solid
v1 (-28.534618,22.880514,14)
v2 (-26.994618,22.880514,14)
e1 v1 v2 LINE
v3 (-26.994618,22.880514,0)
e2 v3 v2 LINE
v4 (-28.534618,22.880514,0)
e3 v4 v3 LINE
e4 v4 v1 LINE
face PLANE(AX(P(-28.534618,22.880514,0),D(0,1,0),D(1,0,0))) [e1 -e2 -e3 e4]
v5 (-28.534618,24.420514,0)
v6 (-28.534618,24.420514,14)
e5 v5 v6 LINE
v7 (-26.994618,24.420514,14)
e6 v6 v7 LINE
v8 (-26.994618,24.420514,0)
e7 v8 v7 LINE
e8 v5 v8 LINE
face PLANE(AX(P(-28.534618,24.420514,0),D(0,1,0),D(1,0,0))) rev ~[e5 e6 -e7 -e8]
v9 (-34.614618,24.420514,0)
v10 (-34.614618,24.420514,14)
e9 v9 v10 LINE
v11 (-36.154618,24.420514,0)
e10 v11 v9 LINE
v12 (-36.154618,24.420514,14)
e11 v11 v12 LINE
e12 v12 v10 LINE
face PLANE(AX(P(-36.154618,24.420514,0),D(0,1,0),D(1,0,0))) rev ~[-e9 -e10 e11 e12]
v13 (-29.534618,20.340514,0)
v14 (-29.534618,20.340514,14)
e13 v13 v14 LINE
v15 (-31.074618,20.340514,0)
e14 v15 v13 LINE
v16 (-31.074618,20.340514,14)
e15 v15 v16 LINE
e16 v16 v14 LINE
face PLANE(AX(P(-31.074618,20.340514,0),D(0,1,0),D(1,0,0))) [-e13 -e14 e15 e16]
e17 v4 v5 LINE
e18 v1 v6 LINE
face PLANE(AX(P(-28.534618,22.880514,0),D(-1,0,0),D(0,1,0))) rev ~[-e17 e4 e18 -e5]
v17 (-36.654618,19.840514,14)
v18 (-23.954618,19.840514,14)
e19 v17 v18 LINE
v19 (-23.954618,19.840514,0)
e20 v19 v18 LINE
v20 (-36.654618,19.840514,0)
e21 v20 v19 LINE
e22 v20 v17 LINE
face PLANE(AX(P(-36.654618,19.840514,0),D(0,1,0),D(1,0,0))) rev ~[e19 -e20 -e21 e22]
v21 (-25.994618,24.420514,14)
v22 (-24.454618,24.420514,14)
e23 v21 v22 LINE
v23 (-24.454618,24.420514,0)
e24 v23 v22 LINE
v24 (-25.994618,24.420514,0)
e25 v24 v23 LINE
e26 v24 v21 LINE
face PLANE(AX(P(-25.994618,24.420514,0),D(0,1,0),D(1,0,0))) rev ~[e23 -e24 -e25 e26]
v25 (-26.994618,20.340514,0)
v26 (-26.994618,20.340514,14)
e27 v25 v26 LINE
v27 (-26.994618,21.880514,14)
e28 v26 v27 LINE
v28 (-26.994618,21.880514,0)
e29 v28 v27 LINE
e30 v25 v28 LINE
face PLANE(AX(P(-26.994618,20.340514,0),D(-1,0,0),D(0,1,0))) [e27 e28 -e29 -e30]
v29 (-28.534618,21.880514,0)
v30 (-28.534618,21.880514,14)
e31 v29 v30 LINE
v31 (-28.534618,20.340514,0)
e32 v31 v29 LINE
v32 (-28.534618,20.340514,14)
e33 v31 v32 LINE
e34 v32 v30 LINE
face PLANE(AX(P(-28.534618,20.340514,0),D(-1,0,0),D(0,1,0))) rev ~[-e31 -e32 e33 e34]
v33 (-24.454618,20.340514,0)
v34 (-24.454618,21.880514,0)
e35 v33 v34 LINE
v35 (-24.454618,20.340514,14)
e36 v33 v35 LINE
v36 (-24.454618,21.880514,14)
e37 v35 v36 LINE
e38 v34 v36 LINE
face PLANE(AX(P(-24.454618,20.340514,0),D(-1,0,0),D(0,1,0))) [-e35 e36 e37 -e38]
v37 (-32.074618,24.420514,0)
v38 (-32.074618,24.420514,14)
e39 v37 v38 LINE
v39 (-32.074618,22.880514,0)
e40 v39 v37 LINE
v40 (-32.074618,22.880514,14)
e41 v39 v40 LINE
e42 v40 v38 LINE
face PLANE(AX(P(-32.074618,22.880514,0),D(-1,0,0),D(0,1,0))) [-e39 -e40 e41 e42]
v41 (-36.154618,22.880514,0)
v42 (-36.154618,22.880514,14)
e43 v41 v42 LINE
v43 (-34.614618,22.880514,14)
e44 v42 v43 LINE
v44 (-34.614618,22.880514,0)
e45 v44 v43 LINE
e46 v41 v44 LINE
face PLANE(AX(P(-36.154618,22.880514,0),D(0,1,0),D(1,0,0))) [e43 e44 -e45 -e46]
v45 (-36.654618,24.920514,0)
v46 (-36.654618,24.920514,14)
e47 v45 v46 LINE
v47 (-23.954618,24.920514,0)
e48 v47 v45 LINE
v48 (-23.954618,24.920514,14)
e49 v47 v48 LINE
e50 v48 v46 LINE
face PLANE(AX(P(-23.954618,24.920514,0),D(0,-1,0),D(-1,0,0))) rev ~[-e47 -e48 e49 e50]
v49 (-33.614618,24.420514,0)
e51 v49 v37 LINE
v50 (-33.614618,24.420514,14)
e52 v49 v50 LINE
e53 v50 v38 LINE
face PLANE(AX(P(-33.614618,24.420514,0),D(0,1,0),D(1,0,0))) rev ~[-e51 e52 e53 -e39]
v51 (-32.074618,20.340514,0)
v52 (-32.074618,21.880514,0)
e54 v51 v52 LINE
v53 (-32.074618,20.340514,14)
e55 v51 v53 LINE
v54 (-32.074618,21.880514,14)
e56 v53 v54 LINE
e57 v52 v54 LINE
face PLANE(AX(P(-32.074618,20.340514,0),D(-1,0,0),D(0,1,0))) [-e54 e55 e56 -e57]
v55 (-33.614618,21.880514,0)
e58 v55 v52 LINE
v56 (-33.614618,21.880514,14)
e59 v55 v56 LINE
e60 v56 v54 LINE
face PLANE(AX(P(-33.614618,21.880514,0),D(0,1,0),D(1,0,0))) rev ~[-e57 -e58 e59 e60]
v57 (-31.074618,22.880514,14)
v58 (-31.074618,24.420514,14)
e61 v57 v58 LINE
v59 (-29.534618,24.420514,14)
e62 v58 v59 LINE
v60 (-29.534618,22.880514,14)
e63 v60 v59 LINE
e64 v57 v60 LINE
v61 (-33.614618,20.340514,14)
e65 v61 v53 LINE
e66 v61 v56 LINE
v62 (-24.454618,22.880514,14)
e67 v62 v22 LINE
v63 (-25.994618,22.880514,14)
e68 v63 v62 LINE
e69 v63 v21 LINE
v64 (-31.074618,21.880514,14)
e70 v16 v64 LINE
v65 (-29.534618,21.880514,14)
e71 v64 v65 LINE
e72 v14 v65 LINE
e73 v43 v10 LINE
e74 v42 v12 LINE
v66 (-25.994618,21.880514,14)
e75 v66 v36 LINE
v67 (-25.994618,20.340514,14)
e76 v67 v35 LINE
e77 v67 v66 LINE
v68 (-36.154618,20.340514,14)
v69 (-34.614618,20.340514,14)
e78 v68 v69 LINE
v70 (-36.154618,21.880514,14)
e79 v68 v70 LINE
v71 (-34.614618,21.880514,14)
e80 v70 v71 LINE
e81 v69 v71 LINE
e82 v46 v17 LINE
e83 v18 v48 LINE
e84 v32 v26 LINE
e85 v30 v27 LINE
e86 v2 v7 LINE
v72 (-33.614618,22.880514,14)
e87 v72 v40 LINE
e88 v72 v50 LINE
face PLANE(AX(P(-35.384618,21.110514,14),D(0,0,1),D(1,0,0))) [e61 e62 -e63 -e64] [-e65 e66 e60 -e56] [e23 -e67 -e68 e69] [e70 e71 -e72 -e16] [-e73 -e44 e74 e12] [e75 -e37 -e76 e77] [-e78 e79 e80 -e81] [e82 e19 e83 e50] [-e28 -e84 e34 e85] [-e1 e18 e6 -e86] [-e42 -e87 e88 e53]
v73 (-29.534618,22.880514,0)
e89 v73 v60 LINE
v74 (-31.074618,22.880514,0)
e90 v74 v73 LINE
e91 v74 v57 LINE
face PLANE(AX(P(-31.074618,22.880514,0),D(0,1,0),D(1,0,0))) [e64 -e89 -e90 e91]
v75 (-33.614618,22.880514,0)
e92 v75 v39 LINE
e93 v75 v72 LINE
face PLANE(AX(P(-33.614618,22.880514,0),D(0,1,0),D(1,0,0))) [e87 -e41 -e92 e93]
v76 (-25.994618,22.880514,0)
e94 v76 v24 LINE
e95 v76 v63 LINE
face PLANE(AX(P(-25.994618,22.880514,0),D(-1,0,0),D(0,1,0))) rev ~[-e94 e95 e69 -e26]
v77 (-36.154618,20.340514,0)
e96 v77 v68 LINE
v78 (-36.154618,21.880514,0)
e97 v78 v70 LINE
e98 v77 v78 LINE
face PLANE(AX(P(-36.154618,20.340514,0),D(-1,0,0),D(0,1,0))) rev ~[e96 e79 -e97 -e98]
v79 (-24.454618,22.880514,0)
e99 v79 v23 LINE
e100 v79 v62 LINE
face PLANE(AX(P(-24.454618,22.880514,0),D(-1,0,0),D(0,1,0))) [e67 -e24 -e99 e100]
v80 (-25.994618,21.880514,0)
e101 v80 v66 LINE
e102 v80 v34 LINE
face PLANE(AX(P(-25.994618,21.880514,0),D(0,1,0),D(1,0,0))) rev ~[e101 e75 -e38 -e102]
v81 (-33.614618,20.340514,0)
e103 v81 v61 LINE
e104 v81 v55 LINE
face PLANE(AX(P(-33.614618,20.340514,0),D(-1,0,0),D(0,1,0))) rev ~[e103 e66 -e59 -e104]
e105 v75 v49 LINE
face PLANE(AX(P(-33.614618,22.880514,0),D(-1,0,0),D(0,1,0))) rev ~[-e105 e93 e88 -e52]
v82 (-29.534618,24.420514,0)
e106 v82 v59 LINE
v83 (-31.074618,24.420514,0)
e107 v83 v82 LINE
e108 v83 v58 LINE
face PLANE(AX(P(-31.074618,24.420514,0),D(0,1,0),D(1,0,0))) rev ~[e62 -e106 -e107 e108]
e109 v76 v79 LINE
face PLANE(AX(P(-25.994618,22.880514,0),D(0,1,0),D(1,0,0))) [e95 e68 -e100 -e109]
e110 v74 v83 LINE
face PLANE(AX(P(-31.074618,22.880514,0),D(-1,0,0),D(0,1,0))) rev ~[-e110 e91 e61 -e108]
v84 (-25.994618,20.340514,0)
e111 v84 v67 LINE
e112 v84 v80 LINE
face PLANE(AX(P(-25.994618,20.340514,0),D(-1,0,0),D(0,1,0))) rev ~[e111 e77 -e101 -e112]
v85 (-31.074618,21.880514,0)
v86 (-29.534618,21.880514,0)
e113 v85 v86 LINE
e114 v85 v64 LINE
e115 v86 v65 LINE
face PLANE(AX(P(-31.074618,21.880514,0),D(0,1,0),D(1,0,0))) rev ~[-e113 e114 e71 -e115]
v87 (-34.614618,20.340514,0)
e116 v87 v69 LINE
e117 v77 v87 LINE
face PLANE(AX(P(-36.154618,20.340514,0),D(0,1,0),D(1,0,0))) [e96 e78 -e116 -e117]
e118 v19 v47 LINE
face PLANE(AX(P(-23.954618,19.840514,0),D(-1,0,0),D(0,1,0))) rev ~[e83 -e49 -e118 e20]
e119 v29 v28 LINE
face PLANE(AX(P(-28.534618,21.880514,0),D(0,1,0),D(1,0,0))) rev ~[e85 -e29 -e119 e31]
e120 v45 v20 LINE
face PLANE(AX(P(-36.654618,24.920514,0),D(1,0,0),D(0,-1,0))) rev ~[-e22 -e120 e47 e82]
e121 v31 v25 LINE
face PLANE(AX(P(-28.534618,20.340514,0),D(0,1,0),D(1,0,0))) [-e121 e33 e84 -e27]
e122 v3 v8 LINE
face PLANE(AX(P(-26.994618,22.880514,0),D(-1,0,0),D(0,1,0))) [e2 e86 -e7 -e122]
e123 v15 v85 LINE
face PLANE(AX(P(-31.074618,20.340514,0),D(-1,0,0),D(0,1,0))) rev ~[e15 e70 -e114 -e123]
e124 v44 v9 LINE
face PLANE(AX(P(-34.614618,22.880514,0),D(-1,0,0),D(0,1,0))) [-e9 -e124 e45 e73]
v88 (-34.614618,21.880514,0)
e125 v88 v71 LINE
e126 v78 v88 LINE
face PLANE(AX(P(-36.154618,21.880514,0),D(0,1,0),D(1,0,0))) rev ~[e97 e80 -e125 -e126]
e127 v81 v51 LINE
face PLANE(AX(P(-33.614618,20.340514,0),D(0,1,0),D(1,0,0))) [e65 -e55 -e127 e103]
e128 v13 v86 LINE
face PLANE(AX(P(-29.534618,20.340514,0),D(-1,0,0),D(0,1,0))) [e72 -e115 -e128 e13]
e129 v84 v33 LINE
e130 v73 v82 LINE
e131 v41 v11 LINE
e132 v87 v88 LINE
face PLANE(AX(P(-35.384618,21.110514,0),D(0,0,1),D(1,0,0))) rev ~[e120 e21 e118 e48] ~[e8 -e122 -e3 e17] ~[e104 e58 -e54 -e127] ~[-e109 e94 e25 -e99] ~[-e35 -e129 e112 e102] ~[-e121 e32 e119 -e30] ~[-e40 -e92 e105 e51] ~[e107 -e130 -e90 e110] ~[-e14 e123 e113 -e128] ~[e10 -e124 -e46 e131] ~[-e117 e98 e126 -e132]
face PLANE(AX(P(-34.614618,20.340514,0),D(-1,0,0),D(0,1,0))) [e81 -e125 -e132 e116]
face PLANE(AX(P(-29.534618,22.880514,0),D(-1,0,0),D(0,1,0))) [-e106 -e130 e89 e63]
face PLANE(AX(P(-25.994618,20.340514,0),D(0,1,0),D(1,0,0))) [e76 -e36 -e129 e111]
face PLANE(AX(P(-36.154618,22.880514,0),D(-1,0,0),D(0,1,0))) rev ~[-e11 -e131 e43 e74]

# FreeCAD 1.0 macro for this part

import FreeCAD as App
import Part
import Sketcher
from FreeCAD import Vector
Q = App.Units.Quantity


def add_polygon(sketch, points):
    """Adds a closed chain of lines whose ends are joined by coincident constraints."""
    first, n = sketch.GeometryCount, len(points)
    for a, b in zip(points, points[1:] + points[:1]):
        sketch.addGeometry(Part.LineSegment(App.Vector(*a, 0), App.Vector(*b, 0)), False)
    for i in range(n):
        sketch.addConstraint(Sketcher.Constraint("Coincident", first + i, 2, first + (i + 1) % n, 1))

doc = App.newDocument("Part")
body = doc.addObject("PartDesign::Body", "Body")

sketch1 = body.newObject("Sketcher::SketchObject", "Sketch")
sketch1.AttachmentSupport = (doc.getObject("XY_Plane"), [""])
sketch1.MapMode = "FlatFace"
add_polygon(sketch1, [(-36.654618, 19.840514), (-23.954618, 19.840514), (-23.954618, 24.920514), (-36.654618, 24.920514)])
add_polygon(sketch1, [(-34.614618, 20.340514), (-36.154618, 20.340514), (-36.154618, 21.880514), (-34.614618, 21.880514)])
add_polygon(sketch1, [(-32.074618, 20.340514), (-33.614618, 20.340514), (-33.614618, 21.880514), (-32.074618, 21.880514)])
add_polygon(sketch1, [(-29.534618, 20.340514), (-31.074618, 20.340514), (-31.074618, 21.880514), (-29.534618, 21.880514)])
add_polygon(sketch1, [(-26.994618, 20.340514), (-28.534618, 20.340514), (-28.534618, 21.880514), (-26.994618, 21.880514)])
add_polygon(sketch1, [(-24.454618, 20.340514), (-25.994618, 20.340514), (-25.994618, 21.880514), (-24.454618, 21.880514)])
add_polygon(sketch1, [(-34.614618, 22.880514), (-36.154618, 22.880514), (-36.154618, 24.420514), (-34.614618, 24.420514)])
add_polygon(sketch1, [(-32.074618, 22.880514), (-33.614618, 22.880514), (-33.614618, 24.420514), (-32.074618, 24.420514)])
add_polygon(sketch1, [(-29.534618, 22.880514), (-31.074618, 22.880514), (-31.074618, 24.420514), (-29.534618, 24.420514)])
add_polygon(sketch1, [(-26.994618, 22.880514), (-28.534618, 22.880514), (-28.534618, 24.420514), (-26.994618, 24.420514)])
add_polygon(sketch1, [(-24.454618, 22.880514), (-25.994618, 22.880514), (-25.994618, 24.420514), (-24.454618, 24.420514)])
sketch1.addConstraint(Sketcher.Constraint("Horizontal", 0))
sketch1.addConstraint(Sketcher.Constraint("Vertical", 1))
sketch1.addConstraint(Sketcher.Constraint("Horizontal", 2))
sketch1.addConstraint(Sketcher.Constraint("Vertical", 3))
sketch1.addConstraint(Sketcher.Constraint("Horizontal", 4))
sketch1.addConstraint(Sketcher.Constraint("Vertical", 5))
sketch1.addConstraint(Sketcher.Constraint("Horizontal", 6))
sketch1.addConstraint(Sketcher.Constraint("Vertical", 7))
sketch1.addConstraint(Sketcher.Constraint("Horizontal", 8))
sketch1.addConstraint(Sketcher.Constraint("Vertical", 9))
sketch1.addConstraint(Sketcher.Constraint("Horizontal", 10))
sketch1.addConstraint(Sketcher.Constraint("Vertical", 11))
sketch1.addConstraint(Sketcher.Constraint("Horizontal", 12))
sketch1.addConstraint(Sketcher.Constraint("Vertical", 13))
sketch1.addConstraint(Sketcher.Constraint("Horizontal", 14))
sketch1.addConstraint(Sketcher.Constraint("Vertical", 15))
sketch1.addConstraint(Sketcher.Constraint("Horizontal", 16))
sketch1.addConstraint(Sketcher.Constraint("Vertical", 17))
sketch1.addConstraint(Sketcher.Constraint("Horizontal", 18))
sketch1.addConstraint(Sketcher.Constraint("Vertical", 19))
sketch1.addConstraint(Sketcher.Constraint("Horizontal", 20))
sketch1.addConstraint(Sketcher.Constraint("Vertical", 21))
sketch1.addConstraint(Sketcher.Constraint("Horizontal", 22))
sketch1.addConstraint(Sketcher.Constraint("Vertical", 23))
sketch1.addConstraint(Sketcher.Constraint("Horizontal", 24))
sketch1.addConstraint(Sketcher.Constraint("Vertical", 25))
sketch1.addConstraint(Sketcher.Constraint("Horizontal", 26))
sketch1.addConstraint(Sketcher.Constraint("Vertical", 27))
sketch1.addConstraint(Sketcher.Constraint("Horizontal", 28))
sketch1.addConstraint(Sketcher.Constraint("Vertical", 29))
sketch1.addConstraint(Sketcher.Constraint("Horizontal", 30))
sketch1.addConstraint(Sketcher.Constraint("Vertical", 31))
sketch1.addConstraint(Sketcher.Constraint("Horizontal", 32))
sketch1.addConstraint(Sketcher.Constraint("Vertical", 33))
sketch1.addConstraint(Sketcher.Constraint("Horizontal", 34))
sketch1.addConstraint(Sketcher.Constraint("Vertical", 35))
sketch1.addConstraint(Sketcher.Constraint("Horizontal", 36))
sketch1.addConstraint(Sketcher.Constraint("Vertical", 37))
sketch1.addConstraint(Sketcher.Constraint("Horizontal", 38))
sketch1.addConstraint(Sketcher.Constraint("Vertical", 39))
sketch1.addConstraint(Sketcher.Constraint("Horizontal", 40))
sketch1.addConstraint(Sketcher.Constraint("Vertical", 41))
sketch1.addConstraint(Sketcher.Constraint("Horizontal", 42))
sketch1.addConstraint(Sketcher.Constraint("Vertical", 43))
sketch1.addConstraint(Sketcher.Constraint("Horizontal", 7, 2, 8, 2))
sketch1.addConstraint(Sketcher.Constraint("Horizontal", 6, 2, 9, 2))
sketch1.addConstraint(Sketcher.Constraint("Horizontal", 11, 2, 12, 2))
sketch1.addConstraint(Sketcher.Constraint("Horizontal", 10, 2, 13, 2))
sketch1.addConstraint(Sketcher.Constraint("Horizontal", 15, 2, 16, 2))
sketch1.addConstraint(Sketcher.Constraint("Horizontal", 14, 2, 17, 2))
sketch1.addConstraint(Sketcher.Constraint("Horizontal", 19, 2, 20, 2))
sketch1.addConstraint(Sketcher.Constraint("Horizontal", 18, 2, 21, 2))
sketch1.addConstraint(Sketcher.Constraint("Horizontal", 27, 2, 28, 2))
sketch1.addConstraint(Sketcher.Constraint("Horizontal", 26, 2, 29, 2))
sketch1.addConstraint(Sketcher.Constraint("Horizontal", 31, 2, 32, 2))
sketch1.addConstraint(Sketcher.Constraint("Horizontal", 30, 2, 33, 2))
sketch1.addConstraint(Sketcher.Constraint("Horizontal", 35, 2, 36, 2))
sketch1.addConstraint(Sketcher.Constraint("Horizontal", 34, 2, 37, 2))
sketch1.addConstraint(Sketcher.Constraint("Horizontal", 39, 2, 40, 2))
sketch1.addConstraint(Sketcher.Constraint("Horizontal", 38, 2, 41, 2))
sketch1.addConstraint(Sketcher.Constraint("Vertical", 5, 2, 24, 2))
sketch1.addConstraint(Sketcher.Constraint("Vertical", 7, 2, 26, 2))
sketch1.addConstraint(Sketcher.Constraint("Vertical", 9, 2, 28, 2))
sketch1.addConstraint(Sketcher.Constraint("Vertical", 11, 2, 30, 2))
sketch1.addConstraint(Sketcher.Constraint("Vertical", 13, 2, 32, 2))
sketch1.addConstraint(Sketcher.Constraint("Vertical", 15, 2, 34, 2))
sketch1.addConstraint(Sketcher.Constraint("Vertical", 17, 2, 36, 2))
sketch1.addConstraint(Sketcher.Constraint("Vertical", 19, 2, 38, 2))
sketch1.addConstraint(Sketcher.Constraint("Vertical", 21, 2, 40, 2))
sketch1.addConstraint(Sketcher.Constraint("Vertical", 23, 2, 42, 2))
sketch1.addConstraint(Sketcher.Constraint("Equal", 6, 8))
sketch1.addConstraint(Sketcher.Constraint("Equal", 10, 12))
sketch1.addConstraint(Sketcher.Constraint("Equal", 14, 16))
sketch1.addConstraint(Sketcher.Constraint("Equal", 18, 20))
sketch1.addConstraint(Sketcher.Constraint("Equal", 42, 5))
sketch1.addConstraint(Sketcher.Constraint("Equal", 23, 25))
sketch1.addConstraint(Sketcher.Constraint("DistanceX", 0, 1, 0, 2, Q("0.5 in")))
sketch1.addConstraint(Sketcher.Constraint("DistanceY", 1, 1, 1, 2, Q("0.2 in")))
sketch1.addConstraint(Sketcher.Constraint("DistanceX", 4, 2, 8, 2, Q("0.1 in")))
sketch1.addConstraint(Sketcher.Constraint("DistanceX", 8, 2, 12, 2, Q("0.1 in")))
sketch1.addConstraint(Sketcher.Constraint("DistanceX", 12, 2, 16, 2, Q("0.1 in")))
sketch1.addConstraint(Sketcher.Constraint("DistanceX", 16, 2, 20, 2, Q("0.1 in")))
sketch1.addConstraint(Sketcher.Constraint("DistanceY", 4, 2, 24, 2, Q("0.1 in")))
sketch1.addConstraint(Sketcher.Constraint("DistanceX", 4, 2, 4, 1, 1.54))
sketch1.addConstraint(Sketcher.Constraint("DistanceX", 3, 2, 4, 2, 0.5))
sketch1.addConstraint(Sketcher.Constraint("DistanceY", 3, 2, 4, 2, 0.5))
sketch1.addConstraint(Sketcher.Constraint("DistanceX", 0, 2, -1, 1, 23.954618))
sketch1.addConstraint(Sketcher.Constraint("DistanceY", -1, 1, 0, 2, 19.840514))
pad1 = body.newObject("PartDesign::Pad", "Pad")
pad1.Profile = sketch1
pad1.Length = 14

doc.recompute()
